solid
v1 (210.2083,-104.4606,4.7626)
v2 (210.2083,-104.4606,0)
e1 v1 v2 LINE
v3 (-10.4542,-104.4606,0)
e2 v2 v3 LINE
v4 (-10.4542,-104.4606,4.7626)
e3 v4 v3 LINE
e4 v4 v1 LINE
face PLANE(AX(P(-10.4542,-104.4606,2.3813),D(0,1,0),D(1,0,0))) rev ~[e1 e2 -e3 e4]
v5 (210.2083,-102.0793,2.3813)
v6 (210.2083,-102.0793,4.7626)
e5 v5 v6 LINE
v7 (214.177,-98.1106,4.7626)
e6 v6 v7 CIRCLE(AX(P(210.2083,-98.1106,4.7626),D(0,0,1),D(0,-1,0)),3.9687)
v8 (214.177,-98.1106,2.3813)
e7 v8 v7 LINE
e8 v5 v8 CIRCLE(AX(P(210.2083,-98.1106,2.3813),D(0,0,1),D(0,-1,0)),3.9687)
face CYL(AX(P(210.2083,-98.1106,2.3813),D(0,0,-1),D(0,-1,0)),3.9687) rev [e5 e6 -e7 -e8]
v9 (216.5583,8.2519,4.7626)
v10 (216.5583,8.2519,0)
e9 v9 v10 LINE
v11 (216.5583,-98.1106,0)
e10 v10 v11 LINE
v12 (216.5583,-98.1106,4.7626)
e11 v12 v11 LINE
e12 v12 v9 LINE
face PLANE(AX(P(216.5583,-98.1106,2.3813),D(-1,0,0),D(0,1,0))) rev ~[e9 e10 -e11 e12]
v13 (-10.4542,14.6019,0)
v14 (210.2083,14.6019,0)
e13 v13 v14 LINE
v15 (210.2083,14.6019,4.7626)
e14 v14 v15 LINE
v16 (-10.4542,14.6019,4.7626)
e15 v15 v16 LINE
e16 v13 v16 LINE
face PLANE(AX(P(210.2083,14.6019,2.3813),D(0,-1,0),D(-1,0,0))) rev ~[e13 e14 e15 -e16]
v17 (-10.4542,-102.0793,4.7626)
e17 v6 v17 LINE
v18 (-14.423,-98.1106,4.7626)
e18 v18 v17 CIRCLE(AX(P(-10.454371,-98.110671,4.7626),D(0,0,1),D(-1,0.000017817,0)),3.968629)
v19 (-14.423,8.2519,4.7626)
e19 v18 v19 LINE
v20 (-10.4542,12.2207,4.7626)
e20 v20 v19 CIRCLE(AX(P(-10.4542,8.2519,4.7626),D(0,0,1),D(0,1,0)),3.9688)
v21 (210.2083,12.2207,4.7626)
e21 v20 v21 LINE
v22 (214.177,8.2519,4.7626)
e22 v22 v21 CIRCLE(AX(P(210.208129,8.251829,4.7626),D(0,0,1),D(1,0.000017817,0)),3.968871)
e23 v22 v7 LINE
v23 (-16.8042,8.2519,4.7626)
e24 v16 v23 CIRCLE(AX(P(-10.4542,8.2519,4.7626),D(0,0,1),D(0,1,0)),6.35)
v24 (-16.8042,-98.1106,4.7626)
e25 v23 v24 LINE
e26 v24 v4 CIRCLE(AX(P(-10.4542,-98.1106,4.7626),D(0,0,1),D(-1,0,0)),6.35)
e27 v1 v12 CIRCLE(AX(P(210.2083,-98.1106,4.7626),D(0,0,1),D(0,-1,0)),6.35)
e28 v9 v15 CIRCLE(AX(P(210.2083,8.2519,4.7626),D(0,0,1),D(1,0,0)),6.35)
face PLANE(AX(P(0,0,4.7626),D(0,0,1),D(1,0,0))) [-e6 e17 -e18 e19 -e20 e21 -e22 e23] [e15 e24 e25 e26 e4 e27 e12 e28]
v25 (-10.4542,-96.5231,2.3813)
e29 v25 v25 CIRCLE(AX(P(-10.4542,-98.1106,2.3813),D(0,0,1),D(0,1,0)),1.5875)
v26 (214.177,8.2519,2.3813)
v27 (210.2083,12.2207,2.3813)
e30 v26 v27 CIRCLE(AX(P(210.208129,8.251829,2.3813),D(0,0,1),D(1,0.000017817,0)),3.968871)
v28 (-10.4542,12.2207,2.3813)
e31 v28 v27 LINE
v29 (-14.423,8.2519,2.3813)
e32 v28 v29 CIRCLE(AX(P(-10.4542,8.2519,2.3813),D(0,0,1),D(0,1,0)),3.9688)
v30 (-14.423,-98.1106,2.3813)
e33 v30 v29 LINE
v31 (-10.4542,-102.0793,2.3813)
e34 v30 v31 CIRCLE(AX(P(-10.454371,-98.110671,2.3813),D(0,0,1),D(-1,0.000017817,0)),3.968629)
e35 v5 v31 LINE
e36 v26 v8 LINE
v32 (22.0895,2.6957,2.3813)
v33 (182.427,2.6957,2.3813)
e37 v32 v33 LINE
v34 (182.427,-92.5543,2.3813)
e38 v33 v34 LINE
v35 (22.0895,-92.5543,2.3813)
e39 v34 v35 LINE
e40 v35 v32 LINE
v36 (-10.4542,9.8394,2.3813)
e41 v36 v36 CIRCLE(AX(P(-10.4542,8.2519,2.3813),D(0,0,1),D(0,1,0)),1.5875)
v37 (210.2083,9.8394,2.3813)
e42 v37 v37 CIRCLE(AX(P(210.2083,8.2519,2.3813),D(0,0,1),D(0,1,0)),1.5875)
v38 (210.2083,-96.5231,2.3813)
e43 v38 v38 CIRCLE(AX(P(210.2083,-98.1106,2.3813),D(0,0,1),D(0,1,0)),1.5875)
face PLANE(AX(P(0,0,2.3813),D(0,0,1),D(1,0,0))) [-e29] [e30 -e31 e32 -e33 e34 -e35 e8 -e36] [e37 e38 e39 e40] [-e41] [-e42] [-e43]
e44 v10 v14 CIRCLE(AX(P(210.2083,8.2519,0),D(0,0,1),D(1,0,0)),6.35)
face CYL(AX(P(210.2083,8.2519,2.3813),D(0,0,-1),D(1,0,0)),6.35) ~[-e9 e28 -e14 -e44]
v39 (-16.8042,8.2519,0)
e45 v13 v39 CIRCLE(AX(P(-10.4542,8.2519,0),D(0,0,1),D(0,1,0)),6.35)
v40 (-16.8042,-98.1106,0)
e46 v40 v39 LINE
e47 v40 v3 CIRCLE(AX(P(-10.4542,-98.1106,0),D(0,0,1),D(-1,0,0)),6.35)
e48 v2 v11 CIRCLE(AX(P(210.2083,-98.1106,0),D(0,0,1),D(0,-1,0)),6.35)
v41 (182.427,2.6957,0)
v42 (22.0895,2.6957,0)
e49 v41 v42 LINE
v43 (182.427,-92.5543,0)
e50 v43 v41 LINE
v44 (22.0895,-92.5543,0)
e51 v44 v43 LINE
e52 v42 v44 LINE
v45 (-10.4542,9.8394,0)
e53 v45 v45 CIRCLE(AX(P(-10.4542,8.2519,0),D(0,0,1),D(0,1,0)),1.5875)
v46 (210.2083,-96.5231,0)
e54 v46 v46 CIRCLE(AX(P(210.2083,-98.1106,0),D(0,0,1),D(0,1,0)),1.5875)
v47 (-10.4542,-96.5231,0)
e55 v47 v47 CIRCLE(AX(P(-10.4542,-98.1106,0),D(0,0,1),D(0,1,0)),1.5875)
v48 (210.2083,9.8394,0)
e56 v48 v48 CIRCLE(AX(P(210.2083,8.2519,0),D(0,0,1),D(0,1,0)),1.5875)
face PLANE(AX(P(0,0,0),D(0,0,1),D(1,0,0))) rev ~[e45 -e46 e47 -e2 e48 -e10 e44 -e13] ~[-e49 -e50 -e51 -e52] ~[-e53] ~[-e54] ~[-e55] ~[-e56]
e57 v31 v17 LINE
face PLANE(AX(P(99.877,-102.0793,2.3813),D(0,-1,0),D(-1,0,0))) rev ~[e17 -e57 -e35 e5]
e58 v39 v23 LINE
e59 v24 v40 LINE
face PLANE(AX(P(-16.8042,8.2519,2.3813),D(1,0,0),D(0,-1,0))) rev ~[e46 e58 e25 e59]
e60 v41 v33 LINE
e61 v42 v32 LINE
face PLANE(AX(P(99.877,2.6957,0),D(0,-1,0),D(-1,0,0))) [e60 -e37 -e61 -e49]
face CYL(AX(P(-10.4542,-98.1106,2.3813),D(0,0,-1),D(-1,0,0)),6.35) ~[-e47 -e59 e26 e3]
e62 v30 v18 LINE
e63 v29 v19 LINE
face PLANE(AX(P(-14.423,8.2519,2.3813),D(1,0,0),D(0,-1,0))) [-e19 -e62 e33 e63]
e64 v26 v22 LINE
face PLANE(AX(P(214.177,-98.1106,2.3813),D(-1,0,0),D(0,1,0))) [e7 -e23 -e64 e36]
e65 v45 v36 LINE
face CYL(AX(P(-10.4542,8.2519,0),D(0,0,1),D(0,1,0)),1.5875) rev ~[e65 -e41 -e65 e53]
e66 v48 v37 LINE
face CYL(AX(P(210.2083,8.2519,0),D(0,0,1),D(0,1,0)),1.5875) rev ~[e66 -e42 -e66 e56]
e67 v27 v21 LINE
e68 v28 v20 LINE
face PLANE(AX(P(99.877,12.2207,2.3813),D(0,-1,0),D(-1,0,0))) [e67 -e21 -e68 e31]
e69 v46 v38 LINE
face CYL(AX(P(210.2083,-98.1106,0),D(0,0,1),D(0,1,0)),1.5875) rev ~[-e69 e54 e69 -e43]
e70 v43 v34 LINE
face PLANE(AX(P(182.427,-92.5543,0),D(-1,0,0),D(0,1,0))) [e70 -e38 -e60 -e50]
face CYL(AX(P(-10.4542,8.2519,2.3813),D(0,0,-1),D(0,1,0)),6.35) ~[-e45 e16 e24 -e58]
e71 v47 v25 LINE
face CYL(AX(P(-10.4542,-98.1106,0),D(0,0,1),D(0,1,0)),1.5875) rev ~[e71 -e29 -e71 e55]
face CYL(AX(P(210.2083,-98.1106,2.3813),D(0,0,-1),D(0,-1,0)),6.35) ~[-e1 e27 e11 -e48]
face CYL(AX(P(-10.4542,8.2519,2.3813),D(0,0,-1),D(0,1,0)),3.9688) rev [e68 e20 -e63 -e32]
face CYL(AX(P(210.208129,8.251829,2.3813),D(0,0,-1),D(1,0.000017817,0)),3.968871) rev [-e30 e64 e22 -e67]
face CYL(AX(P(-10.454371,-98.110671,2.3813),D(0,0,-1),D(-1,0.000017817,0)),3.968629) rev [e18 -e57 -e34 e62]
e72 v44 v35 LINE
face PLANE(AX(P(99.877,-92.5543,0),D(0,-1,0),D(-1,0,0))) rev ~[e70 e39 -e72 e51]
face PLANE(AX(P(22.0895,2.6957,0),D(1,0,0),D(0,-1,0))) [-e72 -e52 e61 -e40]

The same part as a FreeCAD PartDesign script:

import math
import FreeCAD as App
import Part
import Sketcher

V = App.Vector
Q = App.Units.Quantity


def add_polygon(sketch, points):
    """Adds a closed chain of lines whose ends are joined by coincident constraints."""
    first, n = sketch.GeometryCount, len(points)
    for a, b in zip(points, points[1:] + points[:1]):
        sketch.addGeometry(Part.LineSegment(App.Vector(*a, 0), App.Vector(*b, 0)), False)
    for i in range(n):
        sketch.addConstraint(Sketcher.Constraint("Coincident", first + i, 2, first + (i + 1) % n, 1))

doc = App.newDocument("Part")
body = doc.addObject("PartDesign::Body", "Body")

sketch1 = body.newObject("Sketcher::SketchObject", "Sketch")
sketch1.AttachmentSupport = (doc.getObject("XY_Plane"), [""])
sketch1.MapMode = "FlatFace"
sketch1.addGeometry(Part.LineSegment(V(210, 15, 0), V(-10, 15, 0)), False)
sketch1.addGeometry(Part.ArcOfCircle(Part.Circle(V(-10, 8, 0), V(0, 0, 1), 6), math.radians(90), math.radians(180)), False)
sketch1.addGeometry(Part.LineSegment(V(-17, 8, 0), V(-17, -98, 0)), False)
sketch1.addGeometry(Part.ArcOfCircle(Part.Circle(V(-10, -98, 0), V(0, 0, 1), 6), math.radians(180), math.radians(270)), False)
sketch1.addGeometry(Part.LineSegment(V(-10, -104, 0), V(210, -104, 0)), False)
sketch1.addGeometry(Part.ArcOfCircle(Part.Circle(V(210, -98, 0), V(0, 0, 1), 6), math.radians(-90), math.radians(0)), False)
sketch1.addGeometry(Part.LineSegment(V(217, -98, 0), V(217, 8, 0)), False)
sketch1.addGeometry(Part.ArcOfCircle(Part.Circle(V(210, 8, 0), V(0, 0, 1), 6), math.radians(0), math.radians(90)), False)
add_polygon(sketch1, [(182, -93), (22, -93), (22, 3), (182, 3)])
sketch1.addConstraint(Sketcher.Constraint("Tangent", 0, 2, 1, 1))
sketch1.addConstraint(Sketcher.Constraint("Tangent", 1, 2, 2, 1))
sketch1.addConstraint(Sketcher.Constraint("Tangent", 2, 2, 3, 1))
sketch1.addConstraint(Sketcher.Constraint("Tangent", 3, 2, 4, 1))
sketch1.addConstraint(Sketcher.Constraint("Tangent", 4, 2, 5, 1))
sketch1.addConstraint(Sketcher.Constraint("Tangent", 5, 2, 6, 1))
sketch1.addConstraint(Sketcher.Constraint("Tangent", 6, 2, 7, 1))
sketch1.addConstraint(Sketcher.Constraint("Tangent", 7, 2, 0, 1))
sketch1.addConstraint(Sketcher.Constraint("Horizontal", 0))
sketch1.addConstraint(Sketcher.Constraint("Vertical", 2))
sketch1.addConstraint(Sketcher.Constraint("Horizontal", 4))
sketch1.addConstraint(Sketcher.Constraint("Vertical", 6))
sketch1.addConstraint(Sketcher.Constraint("Horizontal", 8))
sketch1.addConstraint(Sketcher.Constraint("Vertical", 9))
sketch1.addConstraint(Sketcher.Constraint("Horizontal", 10))
sketch1.addConstraint(Sketcher.Constraint("Vertical", 11))
sketch1.addConstraint(Sketcher.Constraint("Equal", 1, 3))
sketch1.addConstraint(Sketcher.Constraint("Equal", 3, 5))
sketch1.addConstraint(Sketcher.Constraint("Equal", 5, 7))
sketch1.addConstraint(Sketcher.Constraint("Radius", 1, Q("0.25 in")))
sketch1.addConstraint(Sketcher.Constraint("DistanceY", 3, 2, 0, 2, Q("4.6875 in")))
sketch1.addConstraint(Sketcher.Constraint("DistanceY", 9, 1, 9, 2, Q("3.75 in")))
sketch1.addConstraint(Sketcher.Constraint("DistanceX", 0, 2, 0, 1, Q("8.6875 in")))
sketch1.addConstraint(Sketcher.Constraint("DistanceX", 8, 2, 8, 1, Q("6.3125 in")))
sketch1.addConstraint(Sketcher.Constraint("DistanceX", 3, 3, 8, 2, Q("1.281248 in")))
sketch1.addConstraint(Sketcher.Constraint("DistanceY", 3, 3, 8, 2, Q("0.218752 in")))
sketch1.addConstraint(Sketcher.Constraint("DistanceX", 1, 3, -1, 1, Q("10.4542 mm")))
sketch1.addConstraint(Sketcher.Constraint("DistanceY", -1, 1, 1, 3, Q("8.252 mm")))
pad1 = body.newObject("PartDesign::Pad", "Pad")
pad1.Profile = sketch1
pad1.Length = Q("0.093752 in")

sketch2 = body.newObject("Sketcher::SketchObject", "Sketch001")
sketch2.AttachmentSupport = (doc.getObject("XY_Plane"), [""])
sketch2.MapMode = "FlatFace"
sketch2.AttachmentOffset = App.Placement(V(0, 0, 0.093752 * 25.4), App.Rotation())
sketch2.addGeometry(Part.ArcOfCircle(Part.Circle(V(210.2, 8.3, 0), V(0, 0, 1), 6.3), math.radians(0), math.radians(90)), False)
sketch2.addGeometry(Part.LineSegment(V(210.2, 14.6, 0), V(-10.5, 14.6, 0)), False)
sketch2.addGeometry(Part.ArcOfCircle(Part.Circle(V(-10.5, 8.3, 0), V(0, 0, 1), 6.4), math.radians(90), math.radians(180)), False)
sketch2.addGeometry(Part.LineSegment(V(-16.8, 8.3, 0), V(-16.8, -98.1, 0)), False)
sketch2.addGeometry(Part.ArcOfCircle(Part.Circle(V(-10.5, -98.1, 0), V(0, 0, 1), 6.4), math.radians(180), math.radians(270)), False)
sketch2.addGeometry(Part.LineSegment(V(-10.5, -104.5, 0), V(210.2, -104.5, 0)), False)
sketch2.addGeometry(Part.ArcOfCircle(Part.Circle(V(210.2, -98.1, 0), V(0, 0, 1), 6.3), math.radians(-90), math.radians(0)), False)
sketch2.addGeometry(Part.LineSegment(V(216.6, -98.1, 0), V(216.6, 8.3, 0)), False)
sketch2.addGeometry(Part.LineSegment(V(-10.5, 12.2, 0), V(210.2, 12.2, 0)), False)
sketch2.addGeometry(Part.ArcOfCircle(Part.Circle(V(210.2, 8.3, 0), V(0, 0, 1), 4), math.radians(0), math.radians(90)), False)
sketch2.addGeometry(Part.LineSegment(V(214.2, 8.3, 0), V(214.2, -98.1, 0)), False)
sketch2.addGeometry(Part.ArcOfCircle(Part.Circle(V(210.2, -98.1, 0), V(0, 0, 1), 4), math.radians(-90), math.radians(0)), False)
sketch2.addGeometry(Part.LineSegment(V(210.2, -102.1, 0), V(-10.5, -102.1, 0)), False)
sketch2.addGeometry(Part.ArcOfCircle(Part.Circle(V(-10.5, -98.1, 0), V(0, 0, 1), 4), math.radians(180), math.radians(270)), False)
sketch2.addGeometry(Part.LineSegment(V(-14.4, -98.1, 0), V(-14.4, 8.3, 0)), False)
sketch2.addGeometry(Part.ArcOfCircle(Part.Circle(V(-10.5, 8.3, 0), V(0, 0, 1), 4), math.radians(90), math.radians(180)), False)
sketch2.addConstraint(Sketcher.Constraint("Tangent", 0, 2, 1, 1))
sketch2.addConstraint(Sketcher.Constraint("Tangent", 1, 2, 2, 1))
sketch2.addConstraint(Sketcher.Constraint("Tangent", 2, 2, 3, 1))
sketch2.addConstraint(Sketcher.Constraint("Tangent", 3, 2, 4, 1))
sketch2.addConstraint(Sketcher.Constraint("Tangent", 4, 2, 5, 1))
sketch2.addConstraint(Sketcher.Constraint("Tangent", 5, 2, 6, 1))
sketch2.addConstraint(Sketcher.Constraint("Tangent", 6, 2, 7, 1))
sketch2.addConstraint(Sketcher.Constraint("Tangent", 7, 2, 0, 1))
sketch2.addConstraint(Sketcher.Constraint("Tangent", 8, 2, 9, 2))
sketch2.addConstraint(Sketcher.Constraint("Tangent", 9, 1, 10, 1))
sketch2.addConstraint(Sketcher.Constraint("Tangent", 10, 2, 11, 2))
sketch2.addConstraint(Sketcher.Constraint("Tangent", 11, 1, 12, 1))
sketch2.addConstraint(Sketcher.Constraint("Tangent", 12, 2, 13, 2))
sketch2.addConstraint(Sketcher.Constraint("Tangent", 13, 1, 14, 1))
sketch2.addConstraint(Sketcher.Constraint("Tangent", 14, 2, 15, 2))
sketch2.addConstraint(Sketcher.Constraint("Tangent", 15, 1, 8, 1))
sketch2.addConstraint(Sketcher.Constraint("Horizontal", 1))
sketch2.addConstraint(Sketcher.Constraint("Vertical", 3))
sketch2.addConstraint(Sketcher.Constraint("Horizontal", 5))
sketch2.addConstraint(Sketcher.Constraint("Vertical", 7))
sketch2.addConstraint(Sketcher.Constraint("Horizontal", 8))
sketch2.addConstraint(Sketcher.Constraint("Vertical", 10))
sketch2.addConstraint(Sketcher.Constraint("Horizontal", 12))
sketch2.addConstraint(Sketcher.Constraint("Vertical", 14))
sketch2.addConstraint(Sketcher.Constraint("Coincident", 9, 3, 0, 3))
sketch2.addConstraint(Sketcher.Constraint("Coincident", 11, 3, 6, 3))
sketch2.addConstraint(Sketcher.Constraint("Coincident", 13, 3, 4, 3))
sketch2.addConstraint(Sketcher.Constraint("Equal", 0, 2))
sketch2.addConstraint(Sketcher.Constraint("Equal", 2, 4))
sketch2.addConstraint(Sketcher.Constraint("Equal", 4, 6))
sketch2.addConstraint(Sketcher.Constraint("Equal", 13, 15))
sketch2.addConstraint(Sketcher.Constraint("Radius", 9, Q("0.156248 in")))
sketch2.addConstraint(Sketcher.Constraint("Radius", 0, Q("0.25 in")))
sketch2.addConstraint(Sketcher.Constraint("DistanceX", 1, 2, 1, 1, Q("8.6875 in")))
sketch2.addConstraint(Sketcher.Constraint("DistanceY", 3, 2, 3, 1, Q("4.1875 in")))
sketch2.addConstraint(Sketcher.Constraint("DistanceX", -1, 1, 0, 3, Q("210.2083 mm")))
sketch2.addConstraint(Sketcher.Constraint("DistanceY", -1, 1, 0, 3, Q("8.252 mm")))
pad2 = body.newObject("PartDesign::Pad", "Pad001")
pad2.Profile = sketch2
pad2.Length = Q("0.093752 in")

sketch3 = body.newObject("Sketcher::SketchObject", "Sketch002")
sketch3.AttachmentSupport = (doc.getObject("XY_Plane"), [""])
sketch3.MapMode = "FlatFace"
sketch3.addGeometry(Part.Circle(V(210.2, 8.3, 0), V(0, 0, 1), 1.6), False)
sketch3.addGeometry(Part.Circle(V(-10.5, 8.3, 0), V(0, 0, 1), 1.6), False)
sketch3.addGeometry(Part.Circle(V(-10.5, -98.1, 0), V(0, 0, 1), 1.6), False)
sketch3.addGeometry(Part.Circle(V(210.2, -98.1, 0), V(0, 0, 1), 1.6), False)
sketch3.addConstraint(Sketcher.Constraint("Equal", 0, 1))
sketch3.addConstraint(Sketcher.Constraint("Equal", 1, 2))
sketch3.addConstraint(Sketcher.Constraint("Equal", 2, 3))
sketch3.addConstraint(Sketcher.Constraint("Horizontal", 0, 3, 1, 3))
sketch3.addConstraint(Sketcher.Constraint("Horizontal", 2, 3, 3, 3))
sketch3.addConstraint(Sketcher.Constraint("Vertical", 1, 3, 2, 3))
sketch3.addConstraint(Sketcher.Constraint("Vertical", 0, 3, 3, 3))
sketch3.addConstraint(Sketcher.Constraint("Diameter", 0, Q("0.125 in")))
sketch3.addConstraint(Sketcher.Constraint("DistanceX", 1, 3, 0, 3, Q("8.6875 in")))
sketch3.addConstraint(Sketcher.Constraint("DistanceY", 2, 3, 1, 3, Q("4.1875 in")))
sketch3.addConstraint(Sketcher.Constraint("DistanceX", -1, 1, 0, 3, Q("210.2083 mm")))
sketch3.addConstraint(Sketcher.Constraint("DistanceY", -1, 1, 0, 3, Q("8.252 mm")))
doc.recompute()
hole = body.newObject("PartDesign::Hole", "Hole")
hole.Profile = sketch3
hole.ThreadType = "None"
hole.Diameter = Q("0.125 in")
hole.DepthType = "ThroughAll"
hole.Reversed = True

doc.recompute()
